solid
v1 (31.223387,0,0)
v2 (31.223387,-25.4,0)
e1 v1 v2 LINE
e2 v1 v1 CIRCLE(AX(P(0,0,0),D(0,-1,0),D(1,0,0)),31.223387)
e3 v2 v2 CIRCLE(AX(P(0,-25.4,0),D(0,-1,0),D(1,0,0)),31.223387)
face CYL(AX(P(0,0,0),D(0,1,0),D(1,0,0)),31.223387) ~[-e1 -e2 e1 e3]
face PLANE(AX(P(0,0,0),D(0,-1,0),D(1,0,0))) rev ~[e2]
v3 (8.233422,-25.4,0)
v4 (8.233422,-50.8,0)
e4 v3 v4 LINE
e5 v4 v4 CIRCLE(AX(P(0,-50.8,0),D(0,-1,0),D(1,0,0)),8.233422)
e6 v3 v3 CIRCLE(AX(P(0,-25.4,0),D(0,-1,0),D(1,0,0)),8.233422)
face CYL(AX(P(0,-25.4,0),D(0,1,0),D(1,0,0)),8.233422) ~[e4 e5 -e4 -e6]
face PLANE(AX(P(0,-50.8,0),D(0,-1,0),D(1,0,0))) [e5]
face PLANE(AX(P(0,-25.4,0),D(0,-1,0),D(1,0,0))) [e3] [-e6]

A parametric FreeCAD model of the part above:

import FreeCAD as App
import Part
import Sketcher
from FreeCAD import Vector
Q = App.Units.Quantity

doc = App.newDocument("Part")
body = doc.addObject("PartDesign::Body", "Body")

# Sketch on XZ plane
sketch1 = body.newObject("Sketcher::SketchObject", "Sketch")
sketch1.AttachmentSupport = (doc.getObject("XZ_Plane"), [""])
sketch1.MapMode = "FlatFace"
sketch1.addGeometry(Part.Circle(Vector(0, 0, 0), Vector(0, 0, 1), 31), False)
sketch1.addConstraint(Sketcher.Constraint("Coincident", 0, 3, -1, 1))
sketch1.addConstraint(Sketcher.Constraint("Diameter", 0, 62.446774))
pad1 = body.newObject("PartDesign::Pad", "Pad")
pad1.Profile = sketch1
pad1.Length = Q("1 in")

# Sketch on XZ plane
sketch2 = body.newObject("Sketcher::SketchObject", "Sketch001")
sketch2.AttachmentSupport = (doc.getObject("XZ_Plane"), [""])
sketch2.MapMode = "FlatFace"
sketch2.AttachmentOffset = App.Placement(Vector(0, 0, 1 * 25.4), App.Rotation())
sketch2.addGeometry(Part.Circle(Vector(0, 0, 0), Vector(0, 0, 1), 8), False)
sketch2.addConstraint(Sketcher.Constraint("Coincident", 0, 3, -1, 1))
sketch2.addConstraint(Sketcher.Constraint("Diameter", 0, 16.466844))
pad2 = body.newObject("PartDesign::Pad", "Pad001")
pad2.Profile = sketch2
pad2.Length = Q("1 in")

# Sketch on XZ plane
sketch3 = body.newObject("Sketcher::SketchObject", "Sketch002")
sketch3.AttachmentSupport = (doc.getObject("XZ_Plane"), [""])
sketch3.MapMode = "FlatFace"
sketch3.AttachmentOffset = App.Placement(Vector(0, 0, 2 * 25.4), App.Rotation())
sketch3.addGeometry(Part.Circle(Vector(0, 0, 0), Vector(0, 0, 1), 8), False)
sketch3.addConstraint(Sketcher.Constraint("Coincident", 0, 3, -1, 1))
sketch3.addConstraint(Sketcher.Constraint("Diameter", 0, 16.466844))
pad3 = body.newObject("PartDesign::Pad", "Pad002")
pad3.Profile = sketch3
pad3.Length = Q("1 in")
pad3.Reversed = True

doc.recompute()
